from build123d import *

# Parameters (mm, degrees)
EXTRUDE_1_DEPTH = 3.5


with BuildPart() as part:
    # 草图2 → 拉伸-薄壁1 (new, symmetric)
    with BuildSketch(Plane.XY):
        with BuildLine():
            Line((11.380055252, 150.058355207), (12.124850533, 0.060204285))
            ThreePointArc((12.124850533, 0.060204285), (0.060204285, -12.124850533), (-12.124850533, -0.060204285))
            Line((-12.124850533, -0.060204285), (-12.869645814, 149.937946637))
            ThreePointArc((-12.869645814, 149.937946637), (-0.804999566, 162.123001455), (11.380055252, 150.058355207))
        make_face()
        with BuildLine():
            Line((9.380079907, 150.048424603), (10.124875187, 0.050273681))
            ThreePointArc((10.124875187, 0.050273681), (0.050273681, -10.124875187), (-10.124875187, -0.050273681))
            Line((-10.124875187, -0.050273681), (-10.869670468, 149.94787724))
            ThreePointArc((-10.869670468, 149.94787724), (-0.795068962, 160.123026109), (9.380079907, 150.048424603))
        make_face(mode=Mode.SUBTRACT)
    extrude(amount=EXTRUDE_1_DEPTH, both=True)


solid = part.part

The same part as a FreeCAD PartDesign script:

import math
import FreeCAD as App
import Part
import Sketcher
Q = App.Units.Quantity

doc = App.newDocument("Part")
body = doc.addObject("PartDesign::Body", "Body")

sketch1 = doc.addObject("Sketcher::SketchObject", "Sketch")
body.addObject(sketch1)
sketch1.AttachmentSupport = (doc.XY_Plane, [""])
sketch1.MapMode = "FlatFace"
sketch1.addGeometry(Part.LineSegment(App.Vector(12.124851, 0.060204, 0), App.Vector(11.380055, 150.058355, 0)), False)
sketch1.addGeometry(Part.ArcOfCircle(Part.Circle(App.Vector(-0.744795, 149.998151, 0), App.Vector(0, 0, 1), 12.125), math.radians(0.284492), math.radians(180.284492)), False)
sketch1.addGeometry(Part.LineSegment(App.Vector(-12.869646, 149.937947, 0), App.Vector(-12.124851, -0.060204, 0)), False)
sketch1.addGeometry(Part.ArcOfCircle(Part.Circle(App.Vector(0, 0, 0), App.Vector(0, 0, 1), 12.125), math.radians(-179.715508), math.radians(0.284492)), False)
sketch1.addGeometry(Part.LineSegment(App.Vector(9.38008, 150.048425, 0), App.Vector(10.124875, 0.050274, 0)), False)
sketch1.addGeometry(Part.ArcOfCircle(Part.Circle(App.Vector(0, 0, 0), App.Vector(0, 0, 1), 10.125), math.radians(-179.715508), math.radians(0.284492)), False)
sketch1.addGeometry(Part.LineSegment(App.Vector(-10.124875, -0.050274, 0), App.Vector(-10.86967, 149.947877, 0)), False)
sketch1.addGeometry(Part.ArcOfCircle(Part.Circle(App.Vector(-0.744795, 149.998151, 0), App.Vector(0, 0, 1), 10.125), math.radians(0.284492), math.radians(180.284492)), False)
sketch1.addConstraint(Sketcher.Constraint("Tangent", 0, 2, 1, 1))
sketch1.addConstraint(Sketcher.Constraint("Tangent", 1, 2, 2, 1))
sketch1.addConstraint(Sketcher.Constraint("Tangent", 2, 2, 3, 1))
sketch1.addConstraint(Sketcher.Constraint("Tangent", 3, 2, 0, 1))
sketch1.addConstraint(Sketcher.Constraint("Tangent", 4, 2, 5, 2))
sketch1.addConstraint(Sketcher.Constraint("Tangent", 5, 1, 6, 1))
sketch1.addConstraint(Sketcher.Constraint("Tangent", 6, 2, 7, 2))
sketch1.addConstraint(Sketcher.Constraint("Tangent", 7, 1, 4, 1))
sketch1.addConstraint(Sketcher.Constraint("Coincident", 3, 3, -1, 1))
sketch1.addConstraint(Sketcher.Constraint("Coincident", 5, 3, -1, 1))
sketch1.addConstraint(Sketcher.Constraint("Coincident", 7, 3, 1, 3))
sketch1.addConstraint(Sketcher.Constraint("Equal", 1, 3))
sketch1.addConstraint(Sketcher.Constraint("Equal", 5, 7))
sketch1.addConstraint(Sketcher.Constraint("Distance", 0, Q("150 mm")))
sketch1.addConstraint(Sketcher.Constraint("Radius", 1, Q("12.125 mm")))
sketch1.addConstraint(Sketcher.Constraint("Radius", 5, Q("10.125 mm")))
sketch1.addConstraint(Sketcher.Constraint("DistanceY", -1, 1, 1, 3, Q("149.998151 mm")))
pad1 = doc.addObject("PartDesign::Pad", "Pad")
body.addObject(pad1)
pad1.Profile = sketch1
pad1.Length = 7
pad1.Midplane = True

doc.recompute()
